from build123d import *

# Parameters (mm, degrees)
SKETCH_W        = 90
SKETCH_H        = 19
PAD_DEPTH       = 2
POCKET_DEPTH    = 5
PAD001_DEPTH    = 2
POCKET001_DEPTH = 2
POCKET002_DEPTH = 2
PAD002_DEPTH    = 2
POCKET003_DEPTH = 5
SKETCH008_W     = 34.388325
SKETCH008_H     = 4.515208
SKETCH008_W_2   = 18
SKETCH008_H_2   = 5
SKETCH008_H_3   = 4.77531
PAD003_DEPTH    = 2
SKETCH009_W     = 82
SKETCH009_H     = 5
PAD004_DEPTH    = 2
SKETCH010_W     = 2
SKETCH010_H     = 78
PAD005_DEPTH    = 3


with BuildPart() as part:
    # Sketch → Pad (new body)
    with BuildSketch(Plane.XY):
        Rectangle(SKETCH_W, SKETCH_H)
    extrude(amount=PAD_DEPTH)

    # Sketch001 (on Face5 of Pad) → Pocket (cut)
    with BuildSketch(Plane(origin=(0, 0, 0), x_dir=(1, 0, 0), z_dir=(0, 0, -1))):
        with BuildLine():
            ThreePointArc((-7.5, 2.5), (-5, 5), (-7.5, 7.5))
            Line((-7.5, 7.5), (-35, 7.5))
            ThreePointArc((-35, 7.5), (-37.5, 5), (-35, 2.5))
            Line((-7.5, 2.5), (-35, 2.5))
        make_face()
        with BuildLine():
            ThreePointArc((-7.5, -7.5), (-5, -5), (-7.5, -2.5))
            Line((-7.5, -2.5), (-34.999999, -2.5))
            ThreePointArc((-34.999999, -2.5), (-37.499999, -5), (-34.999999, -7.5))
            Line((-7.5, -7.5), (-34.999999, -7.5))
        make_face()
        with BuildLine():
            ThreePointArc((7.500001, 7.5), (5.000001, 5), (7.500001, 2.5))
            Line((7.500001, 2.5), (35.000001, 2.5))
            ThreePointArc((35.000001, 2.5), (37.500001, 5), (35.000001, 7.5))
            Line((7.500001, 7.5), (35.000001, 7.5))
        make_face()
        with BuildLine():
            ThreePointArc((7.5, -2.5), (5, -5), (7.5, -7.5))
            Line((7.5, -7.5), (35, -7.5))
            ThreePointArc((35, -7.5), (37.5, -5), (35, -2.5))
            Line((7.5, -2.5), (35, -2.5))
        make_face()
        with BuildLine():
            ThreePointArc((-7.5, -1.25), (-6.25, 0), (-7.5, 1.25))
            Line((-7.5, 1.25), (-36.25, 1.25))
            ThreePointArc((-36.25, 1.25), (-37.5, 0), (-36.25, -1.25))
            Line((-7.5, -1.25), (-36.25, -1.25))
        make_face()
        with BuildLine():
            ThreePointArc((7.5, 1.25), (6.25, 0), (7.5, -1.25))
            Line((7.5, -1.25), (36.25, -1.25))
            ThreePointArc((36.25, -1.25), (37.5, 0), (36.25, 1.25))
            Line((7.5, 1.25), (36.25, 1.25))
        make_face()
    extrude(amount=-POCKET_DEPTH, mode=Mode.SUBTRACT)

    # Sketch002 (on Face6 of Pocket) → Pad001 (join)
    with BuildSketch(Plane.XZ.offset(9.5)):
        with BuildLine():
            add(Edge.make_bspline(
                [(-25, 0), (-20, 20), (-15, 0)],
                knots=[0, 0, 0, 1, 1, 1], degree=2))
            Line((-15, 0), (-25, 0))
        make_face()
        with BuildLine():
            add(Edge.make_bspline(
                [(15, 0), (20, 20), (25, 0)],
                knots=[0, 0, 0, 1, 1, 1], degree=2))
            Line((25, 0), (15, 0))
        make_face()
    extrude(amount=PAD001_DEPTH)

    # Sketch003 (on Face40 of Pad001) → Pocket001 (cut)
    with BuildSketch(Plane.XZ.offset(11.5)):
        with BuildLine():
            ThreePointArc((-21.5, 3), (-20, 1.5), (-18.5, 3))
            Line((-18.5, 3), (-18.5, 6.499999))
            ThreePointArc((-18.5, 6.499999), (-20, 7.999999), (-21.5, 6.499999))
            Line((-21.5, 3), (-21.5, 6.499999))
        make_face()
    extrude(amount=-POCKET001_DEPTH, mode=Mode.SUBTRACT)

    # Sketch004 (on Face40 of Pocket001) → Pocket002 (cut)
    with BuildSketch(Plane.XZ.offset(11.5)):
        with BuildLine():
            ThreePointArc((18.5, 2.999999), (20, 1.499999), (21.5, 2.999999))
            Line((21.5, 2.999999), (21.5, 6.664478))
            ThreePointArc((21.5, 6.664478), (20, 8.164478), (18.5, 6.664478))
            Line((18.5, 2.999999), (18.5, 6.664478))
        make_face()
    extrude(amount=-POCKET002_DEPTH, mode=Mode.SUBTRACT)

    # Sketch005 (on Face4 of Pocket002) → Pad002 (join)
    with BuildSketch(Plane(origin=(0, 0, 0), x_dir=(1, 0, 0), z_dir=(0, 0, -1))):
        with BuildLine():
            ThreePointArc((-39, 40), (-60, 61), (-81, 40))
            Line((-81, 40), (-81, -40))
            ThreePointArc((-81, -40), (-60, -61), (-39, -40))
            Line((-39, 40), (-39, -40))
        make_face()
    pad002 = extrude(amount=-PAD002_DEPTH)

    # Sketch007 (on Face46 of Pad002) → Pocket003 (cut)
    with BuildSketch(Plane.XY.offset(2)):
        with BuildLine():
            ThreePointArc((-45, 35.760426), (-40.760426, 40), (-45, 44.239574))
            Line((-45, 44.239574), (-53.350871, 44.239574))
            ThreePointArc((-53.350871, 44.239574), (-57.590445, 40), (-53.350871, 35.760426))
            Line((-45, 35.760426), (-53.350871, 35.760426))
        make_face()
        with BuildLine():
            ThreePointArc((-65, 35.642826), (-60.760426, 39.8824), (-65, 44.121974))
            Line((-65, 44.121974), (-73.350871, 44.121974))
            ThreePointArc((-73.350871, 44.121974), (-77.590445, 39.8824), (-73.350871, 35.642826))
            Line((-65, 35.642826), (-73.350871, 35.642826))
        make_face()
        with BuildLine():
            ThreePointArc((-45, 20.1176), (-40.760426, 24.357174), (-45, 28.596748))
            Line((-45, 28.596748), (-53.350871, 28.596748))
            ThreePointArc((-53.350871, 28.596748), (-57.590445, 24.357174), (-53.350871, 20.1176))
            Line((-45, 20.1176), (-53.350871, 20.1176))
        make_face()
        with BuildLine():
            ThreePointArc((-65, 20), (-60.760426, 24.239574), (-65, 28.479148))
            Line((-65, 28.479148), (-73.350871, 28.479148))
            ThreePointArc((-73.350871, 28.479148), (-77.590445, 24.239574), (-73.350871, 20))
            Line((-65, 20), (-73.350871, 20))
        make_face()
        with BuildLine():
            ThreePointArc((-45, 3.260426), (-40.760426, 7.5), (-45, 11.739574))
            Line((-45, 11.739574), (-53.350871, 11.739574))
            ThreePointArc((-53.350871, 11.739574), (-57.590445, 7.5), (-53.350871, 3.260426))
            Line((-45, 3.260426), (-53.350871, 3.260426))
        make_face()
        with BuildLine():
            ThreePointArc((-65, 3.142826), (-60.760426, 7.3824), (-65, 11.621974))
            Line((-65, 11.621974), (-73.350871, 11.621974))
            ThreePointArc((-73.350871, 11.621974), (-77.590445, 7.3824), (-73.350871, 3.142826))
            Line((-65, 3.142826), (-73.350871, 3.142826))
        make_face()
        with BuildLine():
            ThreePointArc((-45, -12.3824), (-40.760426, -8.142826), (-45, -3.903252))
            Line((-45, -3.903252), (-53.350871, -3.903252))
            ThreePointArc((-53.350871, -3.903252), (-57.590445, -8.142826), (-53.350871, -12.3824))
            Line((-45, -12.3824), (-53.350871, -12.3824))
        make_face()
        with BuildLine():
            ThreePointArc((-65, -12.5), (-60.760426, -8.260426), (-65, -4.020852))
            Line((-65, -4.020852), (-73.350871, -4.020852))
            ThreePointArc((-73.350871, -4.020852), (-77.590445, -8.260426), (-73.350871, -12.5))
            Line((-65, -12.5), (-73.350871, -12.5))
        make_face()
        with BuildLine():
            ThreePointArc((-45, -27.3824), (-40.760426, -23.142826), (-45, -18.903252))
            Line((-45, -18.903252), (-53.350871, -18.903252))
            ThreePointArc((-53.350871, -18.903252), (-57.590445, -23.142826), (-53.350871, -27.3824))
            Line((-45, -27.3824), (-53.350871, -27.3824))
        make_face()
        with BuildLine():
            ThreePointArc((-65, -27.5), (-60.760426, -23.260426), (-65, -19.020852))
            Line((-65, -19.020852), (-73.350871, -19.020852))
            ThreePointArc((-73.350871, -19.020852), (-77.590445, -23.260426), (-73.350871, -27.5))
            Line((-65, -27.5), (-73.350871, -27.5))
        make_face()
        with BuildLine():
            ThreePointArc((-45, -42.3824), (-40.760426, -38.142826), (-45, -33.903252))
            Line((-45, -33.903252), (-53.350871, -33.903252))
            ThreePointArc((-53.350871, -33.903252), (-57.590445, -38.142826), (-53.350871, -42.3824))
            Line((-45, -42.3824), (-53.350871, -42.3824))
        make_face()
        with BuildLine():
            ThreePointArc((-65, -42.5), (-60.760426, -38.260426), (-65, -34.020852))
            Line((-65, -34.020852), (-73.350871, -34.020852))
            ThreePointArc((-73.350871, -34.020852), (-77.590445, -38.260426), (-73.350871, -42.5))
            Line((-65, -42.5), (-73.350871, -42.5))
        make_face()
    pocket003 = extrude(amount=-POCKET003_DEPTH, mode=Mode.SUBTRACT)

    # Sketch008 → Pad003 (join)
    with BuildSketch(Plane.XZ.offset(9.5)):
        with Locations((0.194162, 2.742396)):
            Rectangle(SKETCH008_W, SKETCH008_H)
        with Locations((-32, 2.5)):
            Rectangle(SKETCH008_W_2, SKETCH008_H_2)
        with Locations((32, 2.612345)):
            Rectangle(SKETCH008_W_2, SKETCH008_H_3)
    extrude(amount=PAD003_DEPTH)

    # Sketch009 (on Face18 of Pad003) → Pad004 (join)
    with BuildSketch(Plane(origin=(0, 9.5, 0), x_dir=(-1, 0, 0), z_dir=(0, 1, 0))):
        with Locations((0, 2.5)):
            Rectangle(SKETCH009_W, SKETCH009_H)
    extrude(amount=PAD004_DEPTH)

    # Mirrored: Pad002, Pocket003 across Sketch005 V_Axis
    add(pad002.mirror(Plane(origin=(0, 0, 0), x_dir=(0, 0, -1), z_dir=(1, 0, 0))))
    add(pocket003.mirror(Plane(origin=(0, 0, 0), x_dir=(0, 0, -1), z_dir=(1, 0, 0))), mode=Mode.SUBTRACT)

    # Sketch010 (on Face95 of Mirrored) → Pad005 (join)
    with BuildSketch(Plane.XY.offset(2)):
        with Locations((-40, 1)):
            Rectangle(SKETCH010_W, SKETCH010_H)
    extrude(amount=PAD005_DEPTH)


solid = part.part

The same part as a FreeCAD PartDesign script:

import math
import FreeCAD as App
import Part
import Sketcher

V = App.Vector
Q = App.Units.Quantity


def add_polygon(sketch, points):
    """Adds a closed chain of lines whose ends are joined by coincident constraints."""
    first, n = sketch.GeometryCount, len(points)
    for a, b in zip(points, points[1:] + points[:1]):
        sketch.addGeometry(Part.LineSegment(App.Vector(*a, 0), App.Vector(*b, 0)), False)
    for i in range(n):
        sketch.addConstraint(Sketcher.Constraint("Coincident", first + i, 2, first + (i + 1) % n, 1))

doc = App.newDocument("Part")
body = doc.addObject("PartDesign::Body", "Body")

# Sketch on XY plane
sketch1 = doc.addObject("Sketcher::SketchObject", "Sketch")
body.addObject(sketch1)
sketch1.AttachmentSupport = (doc.XY_Plane, [""])
sketch1.MapMode = "FlatFace"
add_polygon(sketch1, [(-45, 9.5), (-45, -9.5), (45, -9.5), (45, 9.5)])  # lines 0-3
sketch1.addConstraint([
    Sketcher.Constraint("Vertical", 0),
    Sketcher.Constraint("Horizontal", 1),
    Sketcher.Constraint("Vertical", 2),
    Sketcher.Constraint("Horizontal", 3),
    Sketcher.Constraint("Symmetric", 0, 2, 2, 2, -1, 1),
    Sketcher.Constraint("DistanceX", 1, 1, 1, 2, Q("90 mm")),
    Sketcher.Constraint("DistanceY", 0, 2, 0, 1, Q("19 mm")),
])
pad1 = doc.addObject("PartDesign::Pad", "Pad")
body.addObject(pad1)
pad1.Profile = sketch1
pad1.Length = 2

# Sketch on XY plane
sketch2 = doc.addObject("Sketcher::SketchObject", "Sketch001")
body.addObject(sketch2)
sketch2.AttachmentSupport = (doc.XY_Plane, [""])
sketch2.MapMode = "FlatFace"
sketch2.addGeometry([
    Part.ArcOfCircle(Part.Circle(V(-7.5, -5, 0), V(0, 0, 1), 2.5), math.radians(-90), math.radians(90)),  # 0
    Part.LineSegment(V(-7.5, -7.5, 0), V(-35, -7.5, 0)),  # 1
    Part.ArcOfCircle(Part.Circle(V(-35, -5, 0), V(0, 0, 1), 2.5), math.radians(90), math.radians(270)),  # 2
    Part.LineSegment(V(-35, -2.5, 0), V(-7.5, -2.5, 0)),  # 3
    Part.ArcOfCircle(Part.Circle(V(-7.5, 5, 0), V(0, 0, 1), 2.5), math.radians(-90), math.radians(90)),  # 4
    Part.LineSegment(V(-7.5, 2.5, 0), V(-34.999999, 2.5, 0)),  # 5
    Part.ArcOfCircle(Part.Circle(V(-34.999999, 5, 0), V(0, 0, 1), 2.5), math.radians(90), math.radians(270)),  # 6
    Part.LineSegment(V(-34.999999, 7.5, 0), V(-7.5, 7.5, 0)),  # 7
    Part.ArcOfCircle(Part.Circle(V(7.500001, -5, 0), V(0, 0, 1), 2.5), math.radians(90), math.radians(270)),  # 8
    Part.LineSegment(V(7.500001, -2.5, 0), V(35.000001, -2.5, 0)),  # 9
    Part.ArcOfCircle(Part.Circle(V(35.000001, -5, 0), V(0, 0, 1), 2.5), math.radians(-90), math.radians(90)),  # 10
    Part.LineSegment(V(35.000001, -7.5, 0), V(7.500001, -7.5, 0)),  # 11
    Part.ArcOfCircle(Part.Circle(V(7.5, 5, 0), V(0, 0, 1), 2.5), math.radians(90), math.radians(270)),  # 12
    Part.LineSegment(V(7.5, 7.5, 0), V(35, 7.5, 0)),  # 13
    Part.ArcOfCircle(Part.Circle(V(35, 5, 0), V(0, 0, 1), 2.5), math.radians(-90), math.radians(90)),  # 14
    Part.LineSegment(V(35, 2.5, 0), V(7.5, 2.5, 0)),  # 15
    Part.ArcOfCircle(Part.Circle(V(-7.5, 0, 0), V(0, 0, 1), 1.25), math.radians(-90), math.radians(90)),  # 16
    Part.LineSegment(V(-7.5, -1.25, 0), V(-36.25, -1.25, 0)),  # 17
    Part.ArcOfCircle(Part.Circle(V(-36.25, 0, 0), V(0, 0, 1), 1.25), math.radians(90), math.radians(270)),  # 18
    Part.LineSegment(V(-36.25, 1.25, 0), V(-7.5, 1.25, 0)),  # 19
    Part.ArcOfCircle(Part.Circle(V(7.5, 0, 0), V(0, 0, 1), 1.25), math.radians(90), math.radians(270)),  # 20
    Part.LineSegment(V(7.5, 1.25, 0), V(36.25, 1.25, 0)),  # 21
    Part.ArcOfCircle(Part.Circle(V(36.25, 0, 0), V(0, 0, 1), 1.25), math.radians(-90), math.radians(90)),  # 22
    Part.LineSegment(V(36.25, -1.25, 0), V(7.5, -1.25, 0)),  # 23
], False)
sketch2.addConstraint([
    Sketcher.Constraint("Tangent", 0, 1, 1, 1),
    Sketcher.Constraint("Tangent", 1, 2, 2, 2),
    Sketcher.Constraint("Tangent", 2, 1, 3, 1),
    Sketcher.Constraint("Tangent", 3, 2, 0, 2),
    Sketcher.Constraint("Tangent", 4, 1, 5, 1),
    Sketcher.Constraint("Tangent", 5, 2, 6, 2),
    Sketcher.Constraint("Tangent", 6, 1, 7, 1),
    Sketcher.Constraint("Tangent", 7, 2, 4, 2),
    Sketcher.Constraint("Tangent", 8, 1, 9, 1),
    Sketcher.Constraint("Tangent", 9, 2, 10, 2),
    Sketcher.Constraint("Tangent", 10, 1, 11, 1),
    Sketcher.Constraint("Tangent", 11, 2, 8, 2),
    Sketcher.Constraint("Tangent", 12, 1, 13, 1),
    Sketcher.Constraint("Tangent", 13, 2, 14, 2),
    Sketcher.Constraint("Tangent", 14, 1, 15, 1),
    Sketcher.Constraint("Tangent", 15, 2, 12, 2),
    Sketcher.Constraint("Tangent", 16, 1, 17, 1),
    Sketcher.Constraint("Tangent", 17, 2, 18, 2),
    Sketcher.Constraint("Tangent", 18, 1, 19, 1),
    Sketcher.Constraint("Tangent", 19, 2, 16, 2),
    Sketcher.Constraint("Tangent", 20, 1, 21, 1),
    Sketcher.Constraint("Tangent", 21, 2, 22, 2),
    Sketcher.Constraint("Tangent", 22, 1, 23, 1),
    Sketcher.Constraint("Tangent", 23, 2, 20, 2),
    Sketcher.Constraint("Horizontal", 1),
    Sketcher.Constraint("Horizontal", 3),
    Sketcher.Constraint("Horizontal", 5),
    Sketcher.Constraint("Horizontal", 7),
    Sketcher.Constraint("Horizontal", 9),
    Sketcher.Constraint("Horizontal", 11),
    Sketcher.Constraint("Horizontal", 13),
    Sketcher.Constraint("Horizontal", 15),
    Sketcher.Constraint("Horizontal", 17),
    Sketcher.Constraint("Horizontal", 19),
    Sketcher.Constraint("Horizontal", 21),
    Sketcher.Constraint("Horizontal", 23),
    Sketcher.Constraint("Equal", 2, 4),
    Sketcher.Constraint("Equal", 6, 8),
    Sketcher.Constraint("Equal", 10, 12),
    Sketcher.Constraint("Equal", 18, 20),
    Sketcher.Constraint("Symmetric", 4, 3, 8, 3, -1, 1),
    Sketcher.Constraint("Symmetric", 0, 3, 12, 3, -1, 1),
    Sketcher.Constraint("Symmetric", 16, 3, 20, 3, -1, 1),
    Sketcher.Constraint("Symmetric", 0, 3, 8, 3, -2),
    Sketcher.Constraint("Symmetric", 18, 3, 22, 3, -2),
    Sketcher.Constraint("Vertical", 2, 3, 6, 3),
    Sketcher.Constraint("Vertical", 10, 3, 14, 3),
    Sketcher.Constraint("Vertical", 4, 3, 16, 3),
    Sketcher.Constraint("Equal", 7, 9),
    Sketcher.Constraint("Radius", 0, Q("2.5 mm")),
    Sketcher.Constraint("Radius", 16, Q("1.25 mm")),
    Sketcher.Constraint("DistanceX", 1, 2, 1, 1, Q("27.5 mm")),
    Sketcher.Constraint("DistanceY", 0, 3, -1, 1, Q("5 mm")),
    Sketcher.Constraint("DistanceX", 2, 3, -1, 1, Q("35 mm")),
    Sketcher.Constraint("DistanceX", 17, 2, 17, 1, Q("28.75 mm")),
])
pocket1 = doc.addObject("PartDesign::Pocket", "Pocket")
body.addObject(pocket1)
pocket1.Profile = sketch2
pocket1.Length = 5
pocket1.Reversed = True

# Sketch on XZ plane
sketch3 = doc.addObject("Sketcher::SketchObject", "Sketch002")
body.addObject(sketch3)
sketch3.AttachmentSupport = (doc.XZ_Plane, [""])
sketch3.MapMode = "FlatFace"
sketch3.AttachmentOffset = App.Placement(V(0, 0, 9.5), App.Rotation())
sketch3.addGeometry([
    Part.BSplineCurve([V(-25, 0, 0), V(-20, 20, 0), V(-15, 0, 0)], [3, 3], [0, 1], False, 2, [1, 1, 1], False),
    Part.LineSegment(V(-25, 0, 0), V(-15, 0, 0)),
    Part.BSplineCurve([V(15, 0, 0), V(20, 20, 0), V(25, 0, 0)], [3, 3], [0, 1], False, 2, [1, 1, 1], False),
    Part.LineSegment(V(15, 0, 0), V(25, 0, 0)),
], False)
sketch3.addConstraint([
    Sketcher.Constraint("Block", 0),
    Sketcher.Constraint("Block", 2),
    Sketcher.Constraint("Coincident", 0, 1, 1, 1),
    Sketcher.Constraint("Coincident", 1, 2, 0, 2),
    Sketcher.Constraint("Coincident", 2, 1, 3, 1),
    Sketcher.Constraint("Coincident", 3, 2, 2, 2),
])
pad2 = doc.addObject("PartDesign::Pad", "Pad001")
body.addObject(pad2)
pad2.Profile = sketch3
pad2.Length = 2

# Sketch on XZ plane
sketch4 = doc.addObject("Sketcher::SketchObject", "Sketch003")
body.addObject(sketch4)
sketch4.AttachmentSupport = (doc.XZ_Plane, [""])
sketch4.MapMode = "FlatFace"
sketch4.AttachmentOffset = App.Placement(V(0, 0, 11.5), App.Rotation())
sketch4.addGeometry([
    Part.ArcOfCircle(Part.Circle(V(-20, 3, 0), V(0, 0, 1), 1.5), math.radians(180), math.radians(360)),
    Part.LineSegment(V(-18.5, 3, 0), V(-18.5, 6.499999, 0)),
    Part.ArcOfCircle(Part.Circle(V(-20, 6.499999, 0), V(0, 0, 1), 1.5), math.radians(0), math.radians(180)),
    Part.LineSegment(V(-21.5, 6.499999, 0), V(-21.5, 3, 0)),
], False)
sketch4.addConstraint([
    Sketcher.Constraint("Tangent", 0, 2, 1, 1),
    Sketcher.Constraint("Tangent", 1, 2, 2, 1),
    Sketcher.Constraint("Tangent", 2, 2, 3, 1),
    Sketcher.Constraint("Tangent", 3, 2, 0, 1),
    Sketcher.Constraint("Vertical", 1),
    Sketcher.Constraint("Vertical", 3),
    Sketcher.Constraint("Radius", 0, Q("1.5 mm")),
    Sketcher.Constraint("DistanceY", 1, 1, 1, 2, Q("3.499999 mm")),
    Sketcher.Constraint("DistanceX", 0, 3, -1, 1, Q("20 mm")),
    Sketcher.Constraint("DistanceY", -1, 1, 0, 3, Q("3 mm")),
])
pocket2 = doc.addObject("PartDesign::Pocket", "Pocket001")
body.addObject(pocket2)
pocket2.Profile = sketch4
pocket2.Length = 2

# Sketch on XZ plane
sketch5 = doc.addObject("Sketcher::SketchObject", "Sketch004")
body.addObject(sketch5)
sketch5.AttachmentSupport = (doc.XZ_Plane, [""])
sketch5.MapMode = "FlatFace"
sketch5.AttachmentOffset = App.Placement(V(0, 0, 11.5), App.Rotation())
sketch5.addGeometry([
    Part.ArcOfCircle(Part.Circle(V(20, 2.999999, 0), V(0, 0, 1), 1.5), math.radians(180), math.radians(360)),
    Part.LineSegment(V(21.5, 2.999999, 0), V(21.5, 6.664478, 0)),
    Part.ArcOfCircle(Part.Circle(V(20, 6.664478, 0), V(0, 0, 1), 1.5), math.radians(0), math.radians(180)),
    Part.LineSegment(V(18.5, 6.664478, 0), V(18.5, 2.999999, 0)),
], False)
sketch5.addConstraint([
    Sketcher.Constraint("Tangent", 0, 2, 1, 1),
    Sketcher.Constraint("Tangent", 1, 2, 2, 1),
    Sketcher.Constraint("Tangent", 2, 2, 3, 1),
    Sketcher.Constraint("Tangent", 3, 2, 0, 1),
    Sketcher.Constraint("Vertical", 1),
    Sketcher.Constraint("Vertical", 3),
    Sketcher.Constraint("Radius", 0, Q("1.5 mm")),
    Sketcher.Constraint("DistanceX", -1, 1, 0, 3, Q("20 mm")),
    Sketcher.Constraint("DistanceY", -1, 1, 0, 3, Q("2.999999 mm")),
    Sketcher.Constraint("DistanceY", 1, 1, 1, 2, Q("3.664479 mm")),
])
pocket3 = doc.addObject("PartDesign::Pocket", "Pocket002")
body.addObject(pocket3)
pocket3.Profile = sketch5
pocket3.Length = 2

# Sketch on XY plane
sketch6 = doc.addObject("Sketcher::SketchObject", "Sketch005")
body.addObject(sketch6)
sketch6.AttachmentSupport = (doc.XY_Plane, [""])
sketch6.MapMode = "FlatFace"
sketch6.addGeometry([
    Part.ArcOfCircle(Part.Circle(V(-60, -40, 0), V(0, 0, 1), 21), math.radians(180), math.radians(360)),
    Part.LineSegment(V(-81, -40, 0), V(-81, 40, 0)),
    Part.ArcOfCircle(Part.Circle(V(-60, 40, 0), V(0, 0, 1), 21), math.radians(0), math.radians(180)),
    Part.LineSegment(V(-39, 40, 0), V(-39, -40, 0)),
], False)
sketch6.addConstraint([
    Sketcher.Constraint("Tangent", 0, 1, 1, 1),
    Sketcher.Constraint("Tangent", 1, 2, 2, 2),
    Sketcher.Constraint("Tangent", 2, 1, 3, 1),
    Sketcher.Constraint("Tangent", 3, 2, 0, 2),
    Sketcher.Constraint("Vertical", 1),
    Sketcher.Constraint("Vertical", 3),
    Sketcher.Constraint("Radius", 0, Q("21 mm")),
    Sketcher.Constraint("DistanceY", 1, 1, 1, 2, Q("80 mm")),
    Sketcher.Constraint("DistanceX", 0, 3, -1, 1, Q("60 mm")),
    Sketcher.Constraint("DistanceY", 0, 3, -1, 1, Q("40 mm")),
])
pad3 = doc.addObject("PartDesign::Pad", "Pad002")
body.addObject(pad3)
pad3.Profile = sketch6
pad3.Length = 2

# Sketch on XY plane
sketch7 = doc.addObject("Sketcher::SketchObject", "Sketch006")
body.addObject(sketch7)
sketch7.AttachmentSupport = (doc.XY_Plane, [""])
sketch7.MapMode = "FlatFace"
sketch7.AttachmentOffset = App.Placement(V(0, 0, 2), App.Rotation())
sketch7.addGeometry([
    Part.ArcOfCircle(Part.Circle(V(-45, 40, 0), V(0, 0, 1), 4.239574), math.radians(-90), math.radians(90)),  # 0
    Part.LineSegment(V(-45, 44.239574, 0), V(-53.350871, 44.239574, 0)),  # 1
    Part.ArcOfCircle(Part.Circle(V(-53.350871, 40, 0), V(0, 0, 1), 4.239574), math.radians(90), math.radians(270)),  # 2
    Part.LineSegment(V(-53.350871, 35.760426, 0), V(-45, 35.760426, 0)),  # 3
    Part.ArcOfCircle(Part.Circle(V(-65, 39.8824, 0), V(0, 0, 1), 4.239574), math.radians(-90), math.radians(90)),  # 4
    Part.LineSegment(V(-65, 44.121974, 0), V(-73.350871, 44.121974, 0)),  # 5
    Part.ArcOfCircle(Part.Circle(V(-73.350871, 39.8824, 0), V(0, 0, 1), 4.239574), math.radians(90), math.radians(270)),  # 6
    Part.LineSegment(V(-73.350871, 35.642826, 0), V(-65, 35.642826, 0)),  # 7
    Part.ArcOfCircle(Part.Circle(V(-45, 24.357174, 0), V(0, 0, 1), 4.239574), math.radians(-90), math.radians(90)),  # 8
    Part.LineSegment(V(-45, 28.596748, 0), V(-53.350871, 28.596748, 0)),  # 9
    Part.ArcOfCircle(Part.Circle(V(-53.350871, 24.357174, 0), V(0, 0, 1), 4.239574), math.radians(90), math.radians(270)),  # 10
    Part.LineSegment(V(-53.350871, 20.1176, 0), V(-45, 20.1176, 0)),  # 11
    Part.ArcOfCircle(Part.Circle(V(-65, 24.239574, 0), V(0, 0, 1), 4.239574), math.radians(-90), math.radians(90)),  # 12
    Part.LineSegment(V(-65, 28.479148, 0), V(-73.350871, 28.479148, 0)),  # 13
    Part.ArcOfCircle(Part.Circle(V(-73.350871, 24.239574, 0), V(0, 0, 1), 4.239574), math.radians(90), math.radians(270)),  # 14
    Part.LineSegment(V(-73.350871, 20, 0), V(-65, 20, 0)),  # 15
    Part.ArcOfCircle(Part.Circle(V(-45, 7.5, 0), V(0, 0, 1), 4.239574), math.radians(-90), math.radians(90)),  # 16
    Part.LineSegment(V(-45, 11.739574, 0), V(-53.350871, 11.739574, 0)),  # 17
    Part.ArcOfCircle(Part.Circle(V(-53.350871, 7.5, 0), V(0, 0, 1), 4.239574), math.radians(90), math.radians(270)),  # 18
    Part.LineSegment(V(-53.350871, 3.260426, 0), V(-45, 3.260426, 0)),  # 19
    Part.ArcOfCircle(Part.Circle(V(-65, 7.3824, 0), V(0, 0, 1), 4.239574), math.radians(-90), math.radians(90)),  # 20
    Part.LineSegment(V(-65, 11.621974, 0), V(-73.350871, 11.621974, 0)),  # 21
    Part.ArcOfCircle(Part.Circle(V(-73.350871, 7.3824, 0), V(0, 0, 1), 4.239574), math.radians(90), math.radians(270)),  # 22
    Part.LineSegment(V(-73.350871, 3.142826, 0), V(-65, 3.142826, 0)),  # 23
    Part.ArcOfCircle(Part.Circle(V(-45, -8.142826, 0), V(0, 0, 1), 4.239574), math.radians(-90), math.radians(90)),  # 24
    Part.LineSegment(V(-45, -3.903252, 0), V(-53.350871, -3.903252, 0)),  # 25
    Part.ArcOfCircle(Part.Circle(V(-53.350871, -8.142826, 0), V(0, 0, 1), 4.239574), math.radians(90), math.radians(270)),  # 26
    Part.LineSegment(V(-53.350871, -12.3824, 0), V(-45, -12.3824, 0)),  # 27
    Part.ArcOfCircle(Part.Circle(V(-65, -8.260426, 0), V(0, 0, 1), 4.239574), math.radians(-90), math.radians(90)),  # 28
    Part.LineSegment(V(-65, -4.020852, 0), V(-73.350871, -4.020852, 0)),  # 29
    Part.ArcOfCircle(Part.Circle(V(-73.350871, -8.260426, 0), V(0, 0, 1), 4.239574), math.radians(90), math.radians(270)),  # 30
    Part.LineSegment(V(-73.350871, -12.5, 0), V(-65, -12.5, 0)),  # 31
    Part.ArcOfCircle(Part.Circle(V(-45, -23.142826, 0), V(0, 0, 1), 4.239574), math.radians(-90), math.radians(90)),  # 32
    Part.LineSegment(V(-45, -18.903252, 0), V(-53.350871, -18.903252, 0)),  # 33
    Part.ArcOfCircle(Part.Circle(V(-53.350871, -23.142826, 0), V(0, 0, 1), 4.239574), math.radians(90), math.radians(270)),  # 34
    Part.LineSegment(V(-53.350871, -27.3824, 0), V(-45, -27.3824, 0)),  # 35
    Part.ArcOfCircle(Part.Circle(V(-65, -23.260426, 0), V(0, 0, 1), 4.239574), math.radians(-90), math.radians(90)),  # 36
    Part.LineSegment(V(-65, -19.020852, 0), V(-73.350871, -19.020852, 0)),  # 37
    Part.ArcOfCircle(Part.Circle(V(-73.350871, -23.260426, 0), V(0, 0, 1), 4.239574), math.radians(90), math.radians(270)),  # 38
    Part.LineSegment(V(-73.350871, -27.5, 0), V(-65, -27.5, 0)),  # 39
    Part.ArcOfCircle(Part.Circle(V(-45, -38.142826, 0), V(0, 0, 1), 4.239574), math.radians(-90), math.radians(90)),  # 40
    Part.LineSegment(V(-45, -33.903252, 0), V(-53.350871, -33.903252, 0)),  # 41
    Part.ArcOfCircle(Part.Circle(V(-53.350871, -38.142826, 0), V(0, 0, 1), 4.239574), math.radians(90), math.radians(270)),  # 42
    Part.LineSegment(V(-53.350871, -42.3824, 0), V(-45, -42.3824, 0)),  # 43
    Part.ArcOfCircle(Part.Circle(V(-65, -38.260426, 0), V(0, 0, 1), 4.239574), math.radians(-90), math.radians(90)),  # 44
    Part.LineSegment(V(-65, -34.020852, 0), V(-73.350871, -34.020852, 0)),  # 45
    Part.ArcOfCircle(Part.Circle(V(-73.350871, -38.260426, 0), V(0, 0, 1), 4.239574), math.radians(90), math.radians(270)),  # 46
    Part.LineSegment(V(-73.350871, -42.5, 0), V(-65, -42.5, 0)),  # 47
], False)
sketch7.addConstraint([
    Sketcher.Constraint("Tangent", 0, 2, 1, 1),
    Sketcher.Constraint("Tangent", 1, 2, 2, 1),
    Sketcher.Constraint("Tangent", 2, 2, 3, 1),
    Sketcher.Constraint("Tangent", 3, 2, 0, 1),
    Sketcher.Constraint("Tangent", 4, 2, 5, 1),
    Sketcher.Constraint("Tangent", 5, 2, 6, 1),
    Sketcher.Constraint("Tangent", 6, 2, 7, 1),
    Sketcher.Constraint("Tangent", 7, 2, 4, 1),
    Sketcher.Constraint("Tangent", 8, 2, 9, 1),
    Sketcher.Constraint("Tangent", 9, 2, 10, 1),
    Sketcher.Constraint("Tangent", 10, 2, 11, 1),
    Sketcher.Constraint("Tangent", 11, 2, 8, 1),
    Sketcher.Constraint("Tangent", 12, 2, 13, 1),
    Sketcher.Constraint("Tangent", 13, 2, 14, 1),
    Sketcher.Constraint("Tangent", 14, 2, 15, 1),
    Sketcher.Constraint("Tangent", 15, 2, 12, 1),
    Sketcher.Constraint("Tangent", 16, 2, 17, 1),
    Sketcher.Constraint("Tangent", 17, 2, 18, 1),
    Sketcher.Constraint("Tangent", 18, 2, 19, 1),
    Sketcher.Constraint("Tangent", 19, 2, 16, 1),
    Sketcher.Constraint("Tangent", 20, 2, 21, 1),
    Sketcher.Constraint("Tangent", 21, 2, 22, 1),
    Sketcher.Constraint("Tangent", 22, 2, 23, 1),
    Sketcher.Constraint("Tangent", 23, 2, 20, 1),
    Sketcher.Constraint("Tangent", 24, 2, 25, 1),
    Sketcher.Constraint("Tangent", 25, 2, 26, 1),
    Sketcher.Constraint("Tangent", 26, 2, 27, 1),
    Sketcher.Constraint("Tangent", 27, 2, 24, 1),
    Sketcher.Constraint("Tangent", 28, 2, 29, 1),
    Sketcher.Constraint("Tangent", 29, 2, 30, 1),
    Sketcher.Constraint("Tangent", 30, 2, 31, 1),
    Sketcher.Constraint("Tangent", 31, 2, 28, 1),
    Sketcher.Constraint("Tangent", 32, 2, 33, 1),
    Sketcher.Constraint("Tangent", 33, 2, 34, 1),
    Sketcher.Constraint("Tangent", 34, 2, 35, 1),
    Sketcher.Constraint("Tangent", 35, 2, 32, 1),
    Sketcher.Constraint("Tangent", 36, 2, 37, 1),
    Sketcher.Constraint("Tangent", 37, 2, 38, 1),
    Sketcher.Constraint("Tangent", 38, 2, 39, 1),
    Sketcher.Constraint("Tangent", 39, 2, 36, 1),
    Sketcher.Constraint("Tangent", 40, 2, 41, 1),
    Sketcher.Constraint("Tangent", 41, 2, 42, 1),
    Sketcher.Constraint("Tangent", 42, 2, 43, 1),
    Sketcher.Constraint("Tangent", 43, 2, 40, 1),
    Sketcher.Constraint("Tangent", 44, 2, 45, 1),
    Sketcher.Constraint("Tangent", 45, 2, 46, 1),
    Sketcher.Constraint("Tangent", 46, 2, 47, 1),
    Sketcher.Constraint("Tangent", 47, 2, 44, 1),
    Sketcher.Constraint("Horizontal", 1),
    Sketcher.Constraint("Horizontal", 3),
    Sketcher.Constraint("Horizontal", 5),
    Sketcher.Constraint("Horizontal", 7),
    Sketcher.Constraint("Horizontal", 9),
    Sketcher.Constraint("Horizontal", 11),
    Sketcher.Constraint("Horizontal", 13),
    Sketcher.Constraint("Horizontal", 15),
    Sketcher.Constraint("Horizontal", 17),
    Sketcher.Constraint("Horizontal", 19),
    Sketcher.Constraint("Horizontal", 21),
    Sketcher.Constraint("Horizontal", 23),
    Sketcher.Constraint("Horizontal", 25),
    Sketcher.Constraint("Horizontal", 27),
    Sketcher.Constraint("Horizontal", 29),
    Sketcher.Constraint("Horizontal", 31),
    Sketcher.Constraint("Horizontal", 33),
    Sketcher.Constraint("Horizontal", 35),
    Sketcher.Constraint("Horizontal", 37),
    Sketcher.Constraint("Horizontal", 39),
    Sketcher.Constraint("Horizontal", 41),
    Sketcher.Constraint("Horizontal", 43),
    Sketcher.Constraint("Horizontal", 45),
    Sketcher.Constraint("Horizontal", 47),
    Sketcher.Constraint("Equal", 2, 4),
    Sketcher.Constraint("Equal", 6, 8),
    Sketcher.Constraint("Equal", 10, 12),
    Sketcher.Constraint("Equal", 14, 16),
    Sketcher.Constraint("Equal", 18, 20),
    Sketcher.Constraint("Equal", 22, 24),
    Sketcher.Constraint("Equal", 26, 28),
    Sketcher.Constraint("Equal", 30, 32),
    Sketcher.Constraint("Equal", 34, 36),
    Sketcher.Constraint("Equal", 38, 40),
    Sketcher.Constraint("Equal", 42, 44),
    Sketcher.Constraint("Vertical", 0, 3, 8, 3),
    Sketcher.Constraint("Vertical", 2, 3, 10, 3),
    Sketcher.Constraint("Vertical", 4, 3, 12, 3),
    Sketcher.Constraint("Vertical", 6, 3, 14, 3),
    Sketcher.Constraint("Vertical", 8, 3, 16, 3),
    Sketcher.Constraint("Vertical", 10, 3, 18, 3),
    Sketcher.Constraint("Vertical", 12, 3, 20, 3),
    Sketcher.Constraint("Vertical", 14, 3, 22, 3),
    Sketcher.Constraint("Vertical", 16, 3, 24, 3),
    Sketcher.Constraint("Vertical", 18, 3, 26, 3),
    Sketcher.Constraint("Vertical", 20, 3, 28, 3),
    Sketcher.Constraint("Vertical", 22, 3, 30, 3),
    Sketcher.Constraint("Vertical", 24, 3, 32, 3),
    Sketcher.Constraint("Vertical", 26, 3, 34, 3),
    Sketcher.Constraint("Vertical", 28, 3, 36, 3),
    Sketcher.Constraint("Vertical", 30, 3, 38, 3),
    Sketcher.Constraint("Vertical", 32, 3, 40, 3),
    Sketcher.Constraint("Vertical", 34, 3, 42, 3),
    Sketcher.Constraint("Vertical", 36, 3, 44, 3),
    Sketcher.Constraint("Vertical", 38, 3, 46, 3),
    Sketcher.Constraint("Equal", 3, 5),
    Sketcher.Constraint("DistanceX", 0, 3, -1, 1, Q("45 mm")),
    Sketcher.Constraint("DistanceY", -1, 1, 0, 3, Q("40 mm")),
    Sketcher.Constraint("DistanceX", 4, 3, -1, 1, Q("65 mm")),
    Sketcher.Constraint("DistanceY", -1, 1, 14, 2, Q("20 mm")),
    Sketcher.Constraint("DistanceY", -1, 1, 16, 3, Q("7.5 mm")),
    Sketcher.Constraint("DistanceY", 30, 2, -1, 1, Q("12.5 mm")),
    Sketcher.Constraint("DistanceY", 38, 2, -1, 1, Q("27.5 mm")),
    Sketcher.Constraint("DistanceY", 46, 2, -1, 1, Q("42.5 mm")),
    Sketcher.Constraint("Radius", 0, Q("4.239574 mm")),
    Sketcher.Constraint("DistanceX", 1, 2, 1, 1, Q("8.350871 mm")),
    Sketcher.Constraint("DistanceY", -1, 1, 4, 3, Q("39.8824 mm")),
    Sketcher.Constraint("DistanceY", -1, 1, 20, 3, Q("7.3824 mm")),
    Sketcher.Constraint("DistanceY", -1, 1, 10, 2, Q("20.1176 mm")),
    Sketcher.Constraint("DistanceY", 26, 2, -1, 1, Q("12.3824 mm")),
    Sketcher.Constraint("DistanceY", 34, 2, -1, 1, Q("27.3824 mm")),
    Sketcher.Constraint("DistanceY", 42, 2, -1, 1, Q("42.3824 mm")),
])
pocket4 = doc.addObject("PartDesign::Pocket", "Pocket003")
body.addObject(pocket4)
pocket4.Profile = sketch7
pocket4.Length = 5

# Sketch on XZ plane
sketch8 = doc.addObject("Sketcher::SketchObject", "Sketch007")
body.addObject(sketch8)
sketch8.AttachmentSupport = (doc.XZ_Plane, [""])
sketch8.MapMode = "FlatFace"
sketch8.AttachmentOffset = App.Placement(V(0, 0, 9.5), App.Rotation())
add_polygon(sketch8, [(-17, 5), (-17, 0.484792), (17.388324, 0.484792), (17.388324, 5)])  # lines 0-3
add_polygon(sketch8, [(-41, 5), (-41, 0), (-23, 0), (-23, 5)])  # lines 4-7
add_polygon(sketch8, [(23, 5), (23, 0.22469), (41, 0.22469), (41, 5)])  # lines 8-11
sketch8.addConstraint([
    Sketcher.Constraint("Vertical", 0),
    Sketcher.Constraint("Horizontal", 1),
    Sketcher.Constraint("Vertical", 2),
    Sketcher.Constraint("Horizontal", 3),
    Sketcher.Constraint("Vertical", 4),
    Sketcher.Constraint("Horizontal", 5),
    Sketcher.Constraint("Vertical", 6),
    Sketcher.Constraint("Horizontal", 7),
    Sketcher.Constraint("Vertical", 8),
    Sketcher.Constraint("Horizontal", 9),
    Sketcher.Constraint("Vertical", 10),
    Sketcher.Constraint("Horizontal", 11),
    Sketcher.Constraint("Symmetric", 7, 2, 10, 2, -2),
    Sketcher.Constraint("PointOnObject", 4, 2, -1),
    Sketcher.Constraint("Horizontal", 3, 2, 6, 2),
    Sketcher.Constraint("Equal", 7, 9),
    Sketcher.Constraint("DistanceX", 5, 1, 5, 2, Q("18 mm")),
    Sketcher.Constraint("DistanceY", 4, 2, 4, 1, Q("5 mm")),
    Sketcher.Constraint("DistanceX", 0, 2, -1, 1, Q("17 mm")),
    Sketcher.Constraint("DistanceX", 4, 2, -1, 1, Q("41 mm")),
    Sketcher.Constraint("DistanceY", 0, 2, 0, 1, Q("4.515208 mm")),
    Sketcher.Constraint("DistanceY", 8, 2, 8, 1, Q("4.77531 mm")),
    Sketcher.Constraint("DistanceX", 1, 1, 1, 2, Q("34.388325 mm")),
])
pad4 = doc.addObject("PartDesign::Pad", "Pad003")
body.addObject(pad4)
pad4.Profile = sketch8
pad4.Length = 2

# Sketch on XZ plane
sketch9 = doc.addObject("Sketcher::SketchObject", "Sketch008")
body.addObject(sketch9)
sketch9.AttachmentSupport = (doc.XZ_Plane, [""])
sketch9.MapMode = "FlatFace"
sketch9.AttachmentOffset = App.Placement(V(0, 0, -9.5), App.Rotation())
add_polygon(sketch9, [(41, 5), (41, 0), (-41, 0), (-41, 5)])  # lines 0-3
sketch9.addConstraint([
    Sketcher.Constraint("Vertical", 0),
    Sketcher.Constraint("Horizontal", 1),
    Sketcher.Constraint("Vertical", 2),
    Sketcher.Constraint("Horizontal", 3),
    Sketcher.Constraint("Symmetric", 0, 2, 1, 2, -1, 1),
    Sketcher.Constraint("DistanceX", 1, 2, 1, 1, Q("82 mm")),
    Sketcher.Constraint("DistanceY", 0, 2, 0, 1, Q("5 mm")),
])
pad5 = doc.addObject("PartDesign::Pad", "Pad004")
body.addObject(pad5)
pad5.Profile = sketch9
pad5.Length = 2
pad5.Reversed = True
doc.recompute()

mirrored = doc.addObject("PartDesign::Mirrored", "Mirrored")
body.addObject(mirrored)
mirrored.Originals = [pad3, pocket4]
mirrored.MirrorPlane = (doc.YZ_Plane, [""])
body.Tip = mirrored

# Sketch on XY plane
sketch10 = doc.addObject("Sketcher::SketchObject", "Sketch009")
body.addObject(sketch10)
sketch10.AttachmentSupport = (doc.XY_Plane, [""])
sketch10.MapMode = "FlatFace"
sketch10.AttachmentOffset = App.Placement(V(0, 0, 2), App.Rotation())
add_polygon(sketch10, [(-41, 40), (-41, -38), (-39, -38), (-39, 40)])  # lines 0-3
sketch10.addConstraint([
    Sketcher.Constraint("Vertical", 0),
    Sketcher.Constraint("Horizontal", 1),
    Sketcher.Constraint("Vertical", 2),
    Sketcher.Constraint("Horizontal", 3),
    Sketcher.Constraint("DistanceX", 1, 1, 1, 2, Q("2 mm")),
    Sketcher.Constraint("DistanceY", 0, 2, 0, 1, Q("78 mm")),
    Sketcher.Constraint("DistanceX", 0, 2, -1, 1, Q("41 mm")),
    Sketcher.Constraint("DistanceY", 0, 2, -1, 1, Q("38 mm")),
])
pad6 = doc.addObject("PartDesign::Pad", "Pad005")
body.addObject(pad6)
pad6.Profile = sketch10
pad6.Length = 3

doc.recompute()
